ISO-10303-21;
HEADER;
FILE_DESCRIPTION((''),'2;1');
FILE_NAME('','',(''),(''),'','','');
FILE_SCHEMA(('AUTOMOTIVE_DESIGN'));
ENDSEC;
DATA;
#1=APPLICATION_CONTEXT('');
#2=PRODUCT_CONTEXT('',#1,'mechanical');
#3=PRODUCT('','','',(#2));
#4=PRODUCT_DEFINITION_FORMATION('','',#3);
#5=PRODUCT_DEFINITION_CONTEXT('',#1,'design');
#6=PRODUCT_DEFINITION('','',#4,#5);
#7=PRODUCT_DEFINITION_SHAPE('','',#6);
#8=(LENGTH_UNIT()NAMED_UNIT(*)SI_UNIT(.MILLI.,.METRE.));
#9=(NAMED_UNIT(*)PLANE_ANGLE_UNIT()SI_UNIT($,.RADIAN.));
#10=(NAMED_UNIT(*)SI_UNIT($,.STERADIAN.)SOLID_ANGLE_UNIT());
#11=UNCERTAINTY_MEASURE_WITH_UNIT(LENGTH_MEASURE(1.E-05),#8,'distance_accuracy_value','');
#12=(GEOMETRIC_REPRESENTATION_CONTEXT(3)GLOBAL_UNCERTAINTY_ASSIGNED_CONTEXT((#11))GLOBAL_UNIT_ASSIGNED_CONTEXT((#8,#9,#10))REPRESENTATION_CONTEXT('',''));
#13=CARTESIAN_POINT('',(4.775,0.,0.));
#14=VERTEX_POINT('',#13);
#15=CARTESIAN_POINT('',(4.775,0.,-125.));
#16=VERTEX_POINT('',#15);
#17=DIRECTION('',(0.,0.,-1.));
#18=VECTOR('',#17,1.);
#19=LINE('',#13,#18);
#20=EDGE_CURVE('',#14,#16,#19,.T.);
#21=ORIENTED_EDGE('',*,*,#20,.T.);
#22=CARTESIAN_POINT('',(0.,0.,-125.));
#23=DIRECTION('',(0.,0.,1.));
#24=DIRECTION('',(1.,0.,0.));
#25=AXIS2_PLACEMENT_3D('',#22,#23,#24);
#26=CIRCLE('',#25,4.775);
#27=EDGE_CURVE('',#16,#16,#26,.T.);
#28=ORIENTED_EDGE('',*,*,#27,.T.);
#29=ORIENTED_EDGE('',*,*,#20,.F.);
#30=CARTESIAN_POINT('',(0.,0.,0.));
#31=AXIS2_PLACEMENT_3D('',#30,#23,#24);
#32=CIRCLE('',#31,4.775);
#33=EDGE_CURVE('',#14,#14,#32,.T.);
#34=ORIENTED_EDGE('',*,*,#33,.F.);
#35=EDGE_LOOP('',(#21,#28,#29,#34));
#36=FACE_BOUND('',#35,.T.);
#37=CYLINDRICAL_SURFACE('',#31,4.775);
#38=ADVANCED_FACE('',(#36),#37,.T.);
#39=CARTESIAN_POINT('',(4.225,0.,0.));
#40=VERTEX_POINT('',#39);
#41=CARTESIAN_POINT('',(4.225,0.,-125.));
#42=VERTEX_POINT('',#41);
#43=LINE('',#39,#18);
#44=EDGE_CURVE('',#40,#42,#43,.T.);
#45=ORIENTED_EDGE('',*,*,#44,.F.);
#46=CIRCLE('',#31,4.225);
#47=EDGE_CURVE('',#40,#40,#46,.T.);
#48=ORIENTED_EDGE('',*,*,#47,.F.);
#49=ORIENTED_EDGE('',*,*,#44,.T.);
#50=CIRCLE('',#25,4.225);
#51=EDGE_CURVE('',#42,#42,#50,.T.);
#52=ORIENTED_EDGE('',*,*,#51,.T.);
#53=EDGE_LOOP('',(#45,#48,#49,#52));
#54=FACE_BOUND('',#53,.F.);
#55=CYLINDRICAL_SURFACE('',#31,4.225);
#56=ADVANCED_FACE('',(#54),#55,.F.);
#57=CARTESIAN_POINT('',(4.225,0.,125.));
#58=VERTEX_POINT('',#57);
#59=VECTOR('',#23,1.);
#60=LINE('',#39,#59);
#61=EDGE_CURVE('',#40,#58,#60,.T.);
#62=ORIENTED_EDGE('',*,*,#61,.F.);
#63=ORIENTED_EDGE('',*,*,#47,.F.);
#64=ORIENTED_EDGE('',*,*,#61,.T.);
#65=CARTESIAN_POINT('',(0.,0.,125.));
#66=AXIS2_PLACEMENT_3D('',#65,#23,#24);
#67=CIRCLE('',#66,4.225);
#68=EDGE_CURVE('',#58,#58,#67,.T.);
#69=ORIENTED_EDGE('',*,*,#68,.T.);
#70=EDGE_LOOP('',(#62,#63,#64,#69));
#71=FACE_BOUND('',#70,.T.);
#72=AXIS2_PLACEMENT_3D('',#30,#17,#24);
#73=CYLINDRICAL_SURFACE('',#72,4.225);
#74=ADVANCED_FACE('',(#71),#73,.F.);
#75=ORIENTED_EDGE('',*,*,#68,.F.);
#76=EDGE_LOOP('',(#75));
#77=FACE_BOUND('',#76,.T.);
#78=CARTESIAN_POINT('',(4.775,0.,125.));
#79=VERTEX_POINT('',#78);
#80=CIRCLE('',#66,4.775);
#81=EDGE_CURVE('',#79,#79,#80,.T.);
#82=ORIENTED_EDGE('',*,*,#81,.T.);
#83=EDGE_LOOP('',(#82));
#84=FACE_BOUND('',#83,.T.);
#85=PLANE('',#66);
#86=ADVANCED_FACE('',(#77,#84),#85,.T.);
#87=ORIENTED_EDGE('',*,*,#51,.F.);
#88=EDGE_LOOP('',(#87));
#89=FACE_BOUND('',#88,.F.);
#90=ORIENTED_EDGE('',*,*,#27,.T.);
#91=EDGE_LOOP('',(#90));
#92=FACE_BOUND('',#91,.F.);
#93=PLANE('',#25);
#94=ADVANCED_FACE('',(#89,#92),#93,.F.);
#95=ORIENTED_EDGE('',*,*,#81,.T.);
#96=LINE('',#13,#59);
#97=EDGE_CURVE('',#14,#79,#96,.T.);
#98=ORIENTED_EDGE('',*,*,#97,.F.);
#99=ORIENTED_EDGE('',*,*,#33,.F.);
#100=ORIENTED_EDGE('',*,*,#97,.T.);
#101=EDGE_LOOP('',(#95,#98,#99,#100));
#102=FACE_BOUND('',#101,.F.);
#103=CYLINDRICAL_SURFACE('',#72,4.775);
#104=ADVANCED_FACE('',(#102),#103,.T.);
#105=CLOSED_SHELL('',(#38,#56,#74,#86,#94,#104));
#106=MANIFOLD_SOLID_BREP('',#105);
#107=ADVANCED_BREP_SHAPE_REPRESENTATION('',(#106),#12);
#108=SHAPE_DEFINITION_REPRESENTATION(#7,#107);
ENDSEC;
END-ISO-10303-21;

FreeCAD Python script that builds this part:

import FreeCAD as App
import Part
import Sketcher

V = App.Vector
Q = App.Units.Quantity

doc = App.newDocument("Part")
body = doc.addObject("PartDesign::Body", "Body")

sketch1 = doc.addObject("Sketcher::SketchObject", "Sketch")
body.addObject(sketch1)
sketch1.AttachmentSupport = (doc.XY_Plane, [""])
sketch1.MapMode = "FlatFace"
sketch1.addGeometry([
    Part.Circle(V(0, 0, 0), V(0, 0, 1), 4.775),
    Part.Circle(V(0, 0, 0), V(0, 0, 1), 4.225),
], False)
sketch1.addConstraint([
    Sketcher.Constraint("Coincident", 0, 3, -1, 1),
    Sketcher.Constraint("Coincident", 1, 3, -1, 1),
    Sketcher.Constraint("Diameter", 0, Q("9.55 mm")),
    Sketcher.Constraint("Diameter", 1, Q("8.45 mm")),
])
pad1 = doc.addObject("PartDesign::Pad", "Pad")
body.addObject(pad1)
pad1.Profile = sketch1
pad1.Length = 250
pad1.Midplane = True

doc.recompute()
